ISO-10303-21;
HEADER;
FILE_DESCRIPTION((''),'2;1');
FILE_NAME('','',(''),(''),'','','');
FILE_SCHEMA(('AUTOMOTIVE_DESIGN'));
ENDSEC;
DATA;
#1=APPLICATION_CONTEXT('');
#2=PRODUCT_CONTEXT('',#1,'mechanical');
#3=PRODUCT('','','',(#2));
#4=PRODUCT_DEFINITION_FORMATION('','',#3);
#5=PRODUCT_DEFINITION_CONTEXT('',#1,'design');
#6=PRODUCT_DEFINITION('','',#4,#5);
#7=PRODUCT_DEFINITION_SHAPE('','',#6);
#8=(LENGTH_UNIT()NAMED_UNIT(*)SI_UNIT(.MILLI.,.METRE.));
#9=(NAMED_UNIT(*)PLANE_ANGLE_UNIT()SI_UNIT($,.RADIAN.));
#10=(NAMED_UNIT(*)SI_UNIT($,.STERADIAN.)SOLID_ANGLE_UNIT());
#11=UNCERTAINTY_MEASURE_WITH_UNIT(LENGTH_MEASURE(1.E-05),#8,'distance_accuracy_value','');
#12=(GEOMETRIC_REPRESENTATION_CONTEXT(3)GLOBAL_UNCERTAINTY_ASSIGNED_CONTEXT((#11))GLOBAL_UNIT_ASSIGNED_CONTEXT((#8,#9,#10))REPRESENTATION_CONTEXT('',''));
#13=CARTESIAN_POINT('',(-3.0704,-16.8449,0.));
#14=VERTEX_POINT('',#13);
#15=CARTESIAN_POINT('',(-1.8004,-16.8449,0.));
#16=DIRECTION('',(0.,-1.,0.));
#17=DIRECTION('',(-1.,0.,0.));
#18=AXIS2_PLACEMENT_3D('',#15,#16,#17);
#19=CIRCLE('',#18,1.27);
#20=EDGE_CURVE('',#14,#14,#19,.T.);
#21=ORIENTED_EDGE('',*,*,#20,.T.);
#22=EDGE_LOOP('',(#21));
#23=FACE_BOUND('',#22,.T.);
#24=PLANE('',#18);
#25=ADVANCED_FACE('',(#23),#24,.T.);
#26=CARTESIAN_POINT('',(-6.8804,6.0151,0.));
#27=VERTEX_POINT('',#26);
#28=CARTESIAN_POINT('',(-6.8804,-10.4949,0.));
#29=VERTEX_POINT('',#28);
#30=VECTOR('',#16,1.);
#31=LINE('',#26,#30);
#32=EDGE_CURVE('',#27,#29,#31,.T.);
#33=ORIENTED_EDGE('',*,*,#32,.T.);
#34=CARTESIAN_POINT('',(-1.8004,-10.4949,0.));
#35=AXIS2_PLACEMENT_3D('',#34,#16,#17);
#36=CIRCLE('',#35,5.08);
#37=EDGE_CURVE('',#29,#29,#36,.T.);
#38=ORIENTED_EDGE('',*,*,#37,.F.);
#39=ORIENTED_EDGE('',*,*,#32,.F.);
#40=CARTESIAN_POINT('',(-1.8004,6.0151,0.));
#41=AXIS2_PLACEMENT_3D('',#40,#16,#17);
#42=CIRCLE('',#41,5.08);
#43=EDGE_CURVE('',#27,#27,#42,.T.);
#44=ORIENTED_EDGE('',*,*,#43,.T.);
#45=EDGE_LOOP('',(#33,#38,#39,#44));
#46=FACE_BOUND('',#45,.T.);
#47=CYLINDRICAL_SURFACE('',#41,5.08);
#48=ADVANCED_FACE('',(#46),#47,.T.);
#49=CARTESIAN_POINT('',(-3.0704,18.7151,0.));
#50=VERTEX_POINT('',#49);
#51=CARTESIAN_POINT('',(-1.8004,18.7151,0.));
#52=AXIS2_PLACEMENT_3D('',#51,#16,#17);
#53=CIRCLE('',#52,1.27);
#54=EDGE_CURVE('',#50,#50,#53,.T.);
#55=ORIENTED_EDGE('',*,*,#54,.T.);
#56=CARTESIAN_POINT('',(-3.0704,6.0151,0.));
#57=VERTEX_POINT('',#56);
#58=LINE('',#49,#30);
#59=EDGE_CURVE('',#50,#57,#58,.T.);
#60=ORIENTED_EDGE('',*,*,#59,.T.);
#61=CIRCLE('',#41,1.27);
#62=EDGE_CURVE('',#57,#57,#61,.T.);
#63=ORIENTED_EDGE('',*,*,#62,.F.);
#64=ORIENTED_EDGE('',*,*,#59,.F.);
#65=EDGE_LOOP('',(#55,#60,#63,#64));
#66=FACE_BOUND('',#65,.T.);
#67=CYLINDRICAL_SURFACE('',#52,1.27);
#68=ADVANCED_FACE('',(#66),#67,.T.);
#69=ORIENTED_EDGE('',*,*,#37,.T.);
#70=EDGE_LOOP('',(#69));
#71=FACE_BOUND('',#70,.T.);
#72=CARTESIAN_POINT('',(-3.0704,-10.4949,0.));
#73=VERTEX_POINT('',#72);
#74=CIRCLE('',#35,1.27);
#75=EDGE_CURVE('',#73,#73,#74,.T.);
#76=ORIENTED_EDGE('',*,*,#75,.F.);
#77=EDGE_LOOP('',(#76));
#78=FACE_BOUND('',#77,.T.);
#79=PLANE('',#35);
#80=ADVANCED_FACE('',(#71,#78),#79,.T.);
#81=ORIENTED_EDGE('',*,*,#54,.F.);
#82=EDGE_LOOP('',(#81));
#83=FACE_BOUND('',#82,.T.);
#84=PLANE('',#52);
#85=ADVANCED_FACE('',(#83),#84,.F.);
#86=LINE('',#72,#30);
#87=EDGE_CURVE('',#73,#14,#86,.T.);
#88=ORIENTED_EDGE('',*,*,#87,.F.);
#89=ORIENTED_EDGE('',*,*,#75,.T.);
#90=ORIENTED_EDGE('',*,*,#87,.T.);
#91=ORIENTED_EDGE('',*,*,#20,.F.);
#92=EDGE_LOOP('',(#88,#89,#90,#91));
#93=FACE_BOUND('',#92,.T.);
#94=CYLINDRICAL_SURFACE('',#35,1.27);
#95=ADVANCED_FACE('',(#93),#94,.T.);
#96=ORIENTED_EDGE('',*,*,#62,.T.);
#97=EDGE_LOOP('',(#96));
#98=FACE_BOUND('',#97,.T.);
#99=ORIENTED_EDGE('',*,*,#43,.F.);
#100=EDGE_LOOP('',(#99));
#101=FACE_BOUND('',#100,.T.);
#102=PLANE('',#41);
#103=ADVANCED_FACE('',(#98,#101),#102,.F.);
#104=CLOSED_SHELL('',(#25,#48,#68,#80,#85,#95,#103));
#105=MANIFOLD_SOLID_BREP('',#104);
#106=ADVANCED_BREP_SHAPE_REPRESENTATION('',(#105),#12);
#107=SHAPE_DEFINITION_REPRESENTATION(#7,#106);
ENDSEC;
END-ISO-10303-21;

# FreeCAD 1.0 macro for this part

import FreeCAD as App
import Part
import Sketcher
Q = App.Units.Quantity


def add_polygon(sketch, points):
    """Adds a closed chain of lines whose ends are joined by coincident constraints."""
    first, n = sketch.GeometryCount, len(points)
    for a, b in zip(points, points[1:] + points[:1]):
        sketch.addGeometry(Part.LineSegment(App.Vector(*a, 0), App.Vector(*b, 0)), False)
    for i in range(n):
        sketch.addConstraint(Sketcher.Constraint("Coincident", first + i, 2, first + (i + 1) % n, 1))

doc = App.newDocument("Part")
body = doc.addObject("PartDesign::Body", "Body")

sketch1 = doc.addObject("Sketcher::SketchObject", "Sketch")
body.addObject(sketch1)
sketch1.AttachmentSupport = (doc.XY_Plane, [""])
sketch1.MapMode = "FlatFace"
add_polygon(sketch1, [(-1.8, 18.7), (-3.1, 18.7), (-3.1, 6), (-6.9, 6), (-6.9, -10.5), (-3.1, -10.5), (-3.1, -16.8), (-1.8, -16.8)])
sketch1.addGeometry(Part.LineSegment(App.Vector(-1.8, 18.7, 0), App.Vector(-1.8, -16.8, 0)), True)
sketch1.addConstraint(Sketcher.Constraint("Horizontal", 0))
sketch1.addConstraint(Sketcher.Constraint("Vertical", 1))
sketch1.addConstraint(Sketcher.Constraint("Horizontal", 2))
sketch1.addConstraint(Sketcher.Constraint("Vertical", 3))
sketch1.addConstraint(Sketcher.Constraint("Horizontal", 4))
sketch1.addConstraint(Sketcher.Constraint("Vertical", 5))
sketch1.addConstraint(Sketcher.Constraint("Horizontal", 6))
sketch1.addConstraint(Sketcher.Constraint("Vertical", 7))
sketch1.addConstraint(Sketcher.Constraint("Vertical", 8))
sketch1.addConstraint(Sketcher.Constraint("Coincident", 8, 1, 7, 2))
sketch1.addConstraint(Sketcher.Constraint("Horizontal", 5, 2, 8, 2))
sketch1.addConstraint(Sketcher.Constraint("Vertical", 1, 2, 4, 2))
sketch1.addConstraint(Sketcher.Constraint("DistanceY", 1, 2, 1, 1, Q("0.5 in")))
sketch1.addConstraint(Sketcher.Constraint("DistanceX", 0, 2, 0, 1, Q("0.05 in")))
sketch1.addConstraint(Sketcher.Constraint("DistanceY", 3, 2, 3, 1, Q("0.65 in")))
sketch1.addConstraint(Sketcher.Constraint("DistanceY", 5, 2, 5, 1, Q("0.25 in")))
sketch1.addConstraint(Sketcher.Constraint("DistanceX", 3, 2, 6, 2, Q("0.2 in")))
sketch1.addConstraint(Sketcher.Constraint("DistanceX", 0, 2, -1, 1, 3.0704))
sketch1.addConstraint(Sketcher.Constraint("DistanceY", -1, 1, 0, 2, Q("0.736811 in")))
revolution = doc.addObject("PartDesign::Revolution", "Revolution")
body.addObject(revolution)
revolution.Profile = sketch1
revolution.ReferenceAxis = (sketch1, ["Axis0"])
revolution.Angle = 360

doc.recompute()
